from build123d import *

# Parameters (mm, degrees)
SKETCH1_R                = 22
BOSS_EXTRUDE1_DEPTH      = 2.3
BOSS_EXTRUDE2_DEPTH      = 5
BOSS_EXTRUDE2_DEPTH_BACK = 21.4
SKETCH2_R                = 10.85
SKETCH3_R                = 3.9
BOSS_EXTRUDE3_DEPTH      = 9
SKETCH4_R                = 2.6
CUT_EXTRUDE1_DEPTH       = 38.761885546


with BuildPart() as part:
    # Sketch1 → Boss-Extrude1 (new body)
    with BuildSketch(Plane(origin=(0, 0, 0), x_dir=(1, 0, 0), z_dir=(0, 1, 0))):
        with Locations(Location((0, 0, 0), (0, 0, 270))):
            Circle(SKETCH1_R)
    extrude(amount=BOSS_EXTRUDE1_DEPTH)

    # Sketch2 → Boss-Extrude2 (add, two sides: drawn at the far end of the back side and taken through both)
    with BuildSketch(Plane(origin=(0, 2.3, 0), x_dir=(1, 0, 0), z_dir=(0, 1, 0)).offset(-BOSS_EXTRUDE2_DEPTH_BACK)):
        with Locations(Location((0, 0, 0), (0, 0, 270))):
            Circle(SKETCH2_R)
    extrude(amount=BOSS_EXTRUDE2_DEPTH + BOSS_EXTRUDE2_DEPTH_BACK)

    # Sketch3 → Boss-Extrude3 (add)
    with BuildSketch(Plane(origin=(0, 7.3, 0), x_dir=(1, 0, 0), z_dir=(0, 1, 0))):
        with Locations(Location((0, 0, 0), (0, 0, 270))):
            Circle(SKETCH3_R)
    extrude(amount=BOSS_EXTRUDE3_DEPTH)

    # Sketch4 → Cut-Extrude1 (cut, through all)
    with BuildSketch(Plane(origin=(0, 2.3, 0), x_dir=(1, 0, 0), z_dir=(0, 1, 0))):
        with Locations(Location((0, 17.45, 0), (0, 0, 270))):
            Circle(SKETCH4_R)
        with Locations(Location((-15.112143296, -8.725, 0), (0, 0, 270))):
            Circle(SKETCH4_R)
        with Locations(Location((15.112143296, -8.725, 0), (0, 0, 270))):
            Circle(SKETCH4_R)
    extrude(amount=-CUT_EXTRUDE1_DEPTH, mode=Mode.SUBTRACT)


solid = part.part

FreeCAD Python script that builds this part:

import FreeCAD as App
import Part
import Sketcher
Q = App.Units.Quantity

doc = App.newDocument("Part")
body = doc.addObject("PartDesign::Body", "Body")

sketch1 = doc.addObject("Sketcher::SketchObject", "Sketch")
body.addObject(sketch1)
sketch1.AttachmentSupport = (doc.XZ_Plane, [""])
sketch1.MapMode = "FlatFace"
sketch1.addGeometry(Part.Circle(App.Vector(0, 0, 0), App.Vector(0, 0, 1), 22), False)
sketch1.addConstraint([
    Sketcher.Constraint("Coincident", 0, 3, -1, 1),
    Sketcher.Constraint("Diameter", 0, Q("44 mm")),
])
pad1 = doc.addObject("PartDesign::Pad", "Pad")
body.addObject(pad1)
pad1.Profile = sketch1
pad1.Length = 2.3
pad1.Reversed = True

sketch2 = doc.addObject("Sketcher::SketchObject", "Sketch001")
body.addObject(sketch2)
sketch2.AttachmentSupport = (doc.XZ_Plane, [""])
sketch2.MapMode = "FlatFace"
sketch2.AttachmentOffset = App.Placement(App.Vector(0, 0, -2.3), App.Rotation())
sketch2.addGeometry(Part.Circle(App.Vector(0, 0, 0), App.Vector(0, 0, 1), 11), False)
sketch2.addConstraint([
    Sketcher.Constraint("Coincident", 0, 3, -1, 1),
    Sketcher.Constraint("Diameter", 0, Q("21.7 mm")),
])
pad2 = doc.addObject("PartDesign::Pad", "Pad001")
body.addObject(pad2)
pad2.Profile = sketch2
pad2.Type = "TwoLengths"
pad2.Length = 5
pad2.Length2 = 21.4
pad2.Reversed = True

sketch3 = doc.addObject("Sketcher::SketchObject", "Sketch002")
body.addObject(sketch3)
sketch3.AttachmentSupport = (doc.XZ_Plane, [""])
sketch3.MapMode = "FlatFace"
sketch3.AttachmentOffset = App.Placement(App.Vector(0, 0, -7.3), App.Rotation())
sketch3.addGeometry(Part.Circle(App.Vector(0, 0, 0), App.Vector(0, 0, 1), 3.9), False)
sketch3.addConstraint([
    Sketcher.Constraint("Coincident", 0, 3, -1, 1),
    Sketcher.Constraint("Diameter", 0, Q("7.8 mm")),
])
pad3 = doc.addObject("PartDesign::Pad", "Pad002")
body.addObject(pad3)
pad3.Profile = sketch3
pad3.Length = 9
pad3.Reversed = True

sketch4 = doc.addObject("Sketcher::SketchObject", "Sketch003")
body.addObject(sketch4)
sketch4.AttachmentSupport = (doc.XZ_Plane, [""])
sketch4.MapMode = "FlatFace"
sketch4.AttachmentOffset = App.Placement(App.Vector(0, 0, -2.3), App.Rotation())
sketch4.addGeometry([
    Part.Circle(App.Vector(0, -17.4, 0), App.Vector(0, 0, 1), 2.6),
    Part.Circle(App.Vector(-15.1, 8.7, 0), App.Vector(0, 0, 1), 2.6),
    Part.Circle(App.Vector(15.1, 8.7, 0), App.Vector(0, 0, 1), 2.6),
], False)
sketch4.addConstraint([
    Sketcher.Constraint("Equal", 0, 1),
    Sketcher.Constraint("Equal", 1, 2),
    Sketcher.Constraint("Symmetric", 1, 3, 2, 3, -2),
    Sketcher.Constraint("PointOnObject", 0, 3, -2),
    Sketcher.Constraint("Diameter", 0, Q("5.2 mm")),
    Sketcher.Constraint("DistanceY", 0, 3, -1, 1, Q("17.45 mm")),
    Sketcher.Constraint("DistanceY", -1, 1, 1, 3, Q("8.725 mm")),
    Sketcher.Constraint("DistanceX", 1, 3, -1, 1, Q("15.112143 mm")),
])
pocket1 = doc.addObject("PartDesign::Pocket", "Pocket")
body.addObject(pocket1)
pocket1.Profile = sketch4
pocket1.Type = "ThroughAll"
pocket1.Reversed = True

doc.recompute()
